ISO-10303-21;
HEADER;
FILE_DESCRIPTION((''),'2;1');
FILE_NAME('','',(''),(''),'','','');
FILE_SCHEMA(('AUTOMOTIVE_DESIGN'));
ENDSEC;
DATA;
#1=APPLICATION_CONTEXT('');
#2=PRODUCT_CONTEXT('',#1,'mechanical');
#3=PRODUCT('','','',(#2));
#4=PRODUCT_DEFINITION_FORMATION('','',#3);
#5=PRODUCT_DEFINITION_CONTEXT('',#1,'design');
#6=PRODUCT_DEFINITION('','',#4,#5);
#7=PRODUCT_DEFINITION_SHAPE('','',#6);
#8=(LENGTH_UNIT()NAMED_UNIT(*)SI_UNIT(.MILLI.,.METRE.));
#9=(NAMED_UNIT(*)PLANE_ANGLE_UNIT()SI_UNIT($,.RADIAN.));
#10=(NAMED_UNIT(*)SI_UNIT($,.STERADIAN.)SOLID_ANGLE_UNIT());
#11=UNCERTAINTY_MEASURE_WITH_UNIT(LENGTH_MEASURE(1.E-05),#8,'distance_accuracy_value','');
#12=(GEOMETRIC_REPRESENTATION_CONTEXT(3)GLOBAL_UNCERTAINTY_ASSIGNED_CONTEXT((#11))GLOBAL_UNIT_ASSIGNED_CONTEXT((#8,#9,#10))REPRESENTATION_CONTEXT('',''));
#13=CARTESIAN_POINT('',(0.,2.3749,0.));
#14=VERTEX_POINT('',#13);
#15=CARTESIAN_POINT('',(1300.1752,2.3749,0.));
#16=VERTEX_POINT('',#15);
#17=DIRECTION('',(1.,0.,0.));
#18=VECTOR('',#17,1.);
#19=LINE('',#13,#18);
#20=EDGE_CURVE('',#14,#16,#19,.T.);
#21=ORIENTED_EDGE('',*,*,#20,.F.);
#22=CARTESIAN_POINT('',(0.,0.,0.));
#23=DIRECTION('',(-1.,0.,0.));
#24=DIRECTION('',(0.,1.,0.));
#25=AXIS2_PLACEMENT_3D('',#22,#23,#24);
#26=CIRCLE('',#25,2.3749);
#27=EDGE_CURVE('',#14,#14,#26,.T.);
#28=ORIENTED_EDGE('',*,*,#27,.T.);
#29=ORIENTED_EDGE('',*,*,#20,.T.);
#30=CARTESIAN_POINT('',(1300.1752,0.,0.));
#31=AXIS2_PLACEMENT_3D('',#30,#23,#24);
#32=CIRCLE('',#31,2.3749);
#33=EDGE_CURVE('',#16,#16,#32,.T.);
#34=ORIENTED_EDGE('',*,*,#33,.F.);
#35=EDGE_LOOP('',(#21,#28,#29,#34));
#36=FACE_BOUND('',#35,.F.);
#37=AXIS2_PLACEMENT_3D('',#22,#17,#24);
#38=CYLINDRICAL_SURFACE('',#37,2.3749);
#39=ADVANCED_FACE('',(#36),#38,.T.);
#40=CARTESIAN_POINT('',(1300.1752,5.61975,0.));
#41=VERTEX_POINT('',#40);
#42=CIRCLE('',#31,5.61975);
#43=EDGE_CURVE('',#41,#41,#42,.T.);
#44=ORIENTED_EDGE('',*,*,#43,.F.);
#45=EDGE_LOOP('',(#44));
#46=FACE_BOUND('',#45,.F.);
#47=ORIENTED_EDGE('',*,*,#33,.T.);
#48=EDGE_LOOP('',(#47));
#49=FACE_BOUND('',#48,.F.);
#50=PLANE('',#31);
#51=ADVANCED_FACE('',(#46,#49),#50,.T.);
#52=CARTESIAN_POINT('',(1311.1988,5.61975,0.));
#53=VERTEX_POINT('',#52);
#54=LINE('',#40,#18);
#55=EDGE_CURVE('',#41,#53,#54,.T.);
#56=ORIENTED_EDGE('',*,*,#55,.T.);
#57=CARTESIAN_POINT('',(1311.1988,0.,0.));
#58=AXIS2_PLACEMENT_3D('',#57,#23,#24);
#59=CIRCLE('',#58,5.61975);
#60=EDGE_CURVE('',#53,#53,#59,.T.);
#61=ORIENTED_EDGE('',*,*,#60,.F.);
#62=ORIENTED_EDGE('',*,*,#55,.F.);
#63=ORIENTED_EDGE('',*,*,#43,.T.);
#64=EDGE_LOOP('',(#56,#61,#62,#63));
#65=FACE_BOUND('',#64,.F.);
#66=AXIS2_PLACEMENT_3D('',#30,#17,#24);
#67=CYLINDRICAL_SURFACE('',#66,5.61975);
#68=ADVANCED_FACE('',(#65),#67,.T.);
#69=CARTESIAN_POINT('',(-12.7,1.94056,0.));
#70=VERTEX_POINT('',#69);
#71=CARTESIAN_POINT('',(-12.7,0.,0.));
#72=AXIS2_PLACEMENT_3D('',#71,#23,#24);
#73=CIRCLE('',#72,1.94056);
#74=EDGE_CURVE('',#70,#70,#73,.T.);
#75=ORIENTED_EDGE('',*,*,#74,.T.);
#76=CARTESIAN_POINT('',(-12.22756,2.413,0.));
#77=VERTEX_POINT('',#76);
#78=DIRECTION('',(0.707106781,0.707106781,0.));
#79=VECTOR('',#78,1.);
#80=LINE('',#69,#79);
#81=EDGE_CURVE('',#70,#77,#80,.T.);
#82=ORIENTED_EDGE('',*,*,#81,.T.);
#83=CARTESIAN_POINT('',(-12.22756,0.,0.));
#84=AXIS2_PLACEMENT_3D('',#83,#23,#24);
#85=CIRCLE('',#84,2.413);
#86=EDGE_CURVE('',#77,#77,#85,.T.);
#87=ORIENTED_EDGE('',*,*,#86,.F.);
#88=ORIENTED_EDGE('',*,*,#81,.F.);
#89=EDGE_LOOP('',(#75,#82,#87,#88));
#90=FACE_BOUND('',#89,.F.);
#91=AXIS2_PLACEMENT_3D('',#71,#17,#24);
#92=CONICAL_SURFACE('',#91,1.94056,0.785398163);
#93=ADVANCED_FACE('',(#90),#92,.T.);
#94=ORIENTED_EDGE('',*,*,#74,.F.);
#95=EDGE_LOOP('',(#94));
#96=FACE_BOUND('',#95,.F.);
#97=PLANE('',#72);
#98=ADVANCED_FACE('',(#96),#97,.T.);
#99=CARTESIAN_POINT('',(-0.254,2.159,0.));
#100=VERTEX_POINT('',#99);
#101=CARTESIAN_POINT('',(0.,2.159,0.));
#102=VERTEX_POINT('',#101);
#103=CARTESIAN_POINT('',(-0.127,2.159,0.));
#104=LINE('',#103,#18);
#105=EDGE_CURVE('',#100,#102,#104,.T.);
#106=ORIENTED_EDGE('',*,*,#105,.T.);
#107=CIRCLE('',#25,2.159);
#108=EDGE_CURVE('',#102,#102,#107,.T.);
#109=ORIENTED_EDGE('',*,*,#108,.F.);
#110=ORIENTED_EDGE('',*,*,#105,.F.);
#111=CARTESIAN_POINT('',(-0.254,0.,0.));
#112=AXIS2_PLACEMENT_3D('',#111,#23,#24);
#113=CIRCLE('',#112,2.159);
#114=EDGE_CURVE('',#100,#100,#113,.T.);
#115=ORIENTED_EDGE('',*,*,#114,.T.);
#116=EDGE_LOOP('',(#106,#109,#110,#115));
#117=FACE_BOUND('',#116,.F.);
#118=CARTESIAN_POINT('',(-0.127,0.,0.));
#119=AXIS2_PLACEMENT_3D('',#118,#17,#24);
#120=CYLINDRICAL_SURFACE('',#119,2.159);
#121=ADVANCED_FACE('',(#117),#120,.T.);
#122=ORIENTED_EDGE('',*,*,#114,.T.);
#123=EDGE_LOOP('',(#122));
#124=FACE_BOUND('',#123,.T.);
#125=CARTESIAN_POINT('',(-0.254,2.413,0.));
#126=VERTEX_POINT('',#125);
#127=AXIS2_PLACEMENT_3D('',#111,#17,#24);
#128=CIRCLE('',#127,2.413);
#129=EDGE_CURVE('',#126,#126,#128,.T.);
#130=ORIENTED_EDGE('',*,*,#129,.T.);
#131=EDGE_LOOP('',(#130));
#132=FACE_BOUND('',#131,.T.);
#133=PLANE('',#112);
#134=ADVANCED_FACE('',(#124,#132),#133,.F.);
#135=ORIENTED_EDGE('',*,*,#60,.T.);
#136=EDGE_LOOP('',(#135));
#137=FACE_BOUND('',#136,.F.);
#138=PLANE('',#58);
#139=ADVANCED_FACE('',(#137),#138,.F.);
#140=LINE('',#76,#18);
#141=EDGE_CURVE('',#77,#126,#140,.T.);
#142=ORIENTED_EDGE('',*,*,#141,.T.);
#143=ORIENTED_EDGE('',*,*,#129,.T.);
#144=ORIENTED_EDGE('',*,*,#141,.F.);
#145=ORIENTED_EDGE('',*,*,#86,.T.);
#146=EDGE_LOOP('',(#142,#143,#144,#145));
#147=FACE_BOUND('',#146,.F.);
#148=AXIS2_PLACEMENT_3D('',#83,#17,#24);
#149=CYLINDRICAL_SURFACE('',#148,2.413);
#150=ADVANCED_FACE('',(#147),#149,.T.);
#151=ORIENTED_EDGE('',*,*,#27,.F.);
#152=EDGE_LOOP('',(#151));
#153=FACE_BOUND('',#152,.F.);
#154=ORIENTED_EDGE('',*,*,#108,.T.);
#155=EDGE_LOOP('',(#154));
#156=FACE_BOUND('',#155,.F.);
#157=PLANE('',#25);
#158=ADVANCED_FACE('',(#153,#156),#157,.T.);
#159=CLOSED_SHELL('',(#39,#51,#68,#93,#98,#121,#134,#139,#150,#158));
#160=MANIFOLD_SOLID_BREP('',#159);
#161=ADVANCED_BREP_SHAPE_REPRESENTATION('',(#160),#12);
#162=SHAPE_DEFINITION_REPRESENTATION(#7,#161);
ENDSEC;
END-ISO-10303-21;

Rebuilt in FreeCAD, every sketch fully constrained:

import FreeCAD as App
import Part
import Sketcher
from FreeCAD import Vector
Q = App.Units.Quantity


def add_polygon(sketch, points):
    """Adds a closed chain of lines whose ends are joined by coincident constraints."""
    first, n = sketch.GeometryCount, len(points)
    for a, b in zip(points, points[1:] + points[:1]):
        sketch.addGeometry(Part.LineSegment(App.Vector(*a, 0), App.Vector(*b, 0)), False)
    for i in range(n):
        sketch.addConstraint(Sketcher.Constraint("Coincident", first + i, 2, first + (i + 1) % n, 1))

doc = App.newDocument("Part")
params = doc.addObject("Spreadsheet::Sheet", "Params")
for row, (alias, value) in enumerate([
    ("sketch1_width", "51.622 in"),
    ("sketch1_width2", "0.434 in"),
    ("revolution_angle", "360 deg"),
    ("sketch2_width", "0.5 in"),
    ("sketch2_height", "0.095 in"),
    ("revolution2_angle", "360 deg"),
    ("sketch3_width", "0.01 in"),
    ("sketch3_height", "0.02 in"),
    ("groove_angle", "360 deg"),
], start=1):
    params.set(f"A{row}", alias)
    params.set(f"B{row}", "=" + value)
    params.setAlias(f"B{row}", alias)

body = doc.addObject("PartDesign::Body", "Body")

sketch1 = doc.addObject("Sketcher::SketchObject", "Sketch")
body.addObject(sketch1)
sketch1.AttachmentSupport = (doc.XY_Plane, [""])
sketch1.MapMode = "FlatFace"
add_polygon(sketch1, [(0, 2.4), (0, 0), (1311.2, 0), (1311.2, 5.6), (1300.2, 5.6), (1300.2, 2.4)])
sketch1.addConstraint([
    Sketcher.Constraint("Vertical", 0),
    Sketcher.Constraint("Horizontal", 1),
    Sketcher.Constraint("Vertical", 2),
    Sketcher.Constraint("Horizontal", 3),
    Sketcher.Constraint("Vertical", 4),
    Sketcher.Constraint("Horizontal", 5),
    Sketcher.Constraint("Coincident", 0, 2, -1, 1),
    Sketcher.Constraint("DistanceX", 1, 1, 1, 2, Q("51.622 in")),
    Sketcher.Constraint("DistanceX", 3, 2, 3, 1, Q("0.434 in")),
    Sketcher.Constraint("DistanceY", 0, 2, 0, 1, Q("0.0935 in")),
    Sketcher.Constraint("DistanceY", 2, 1, 2, 2, 5.61975),
])
sketch1.setExpression("Constraints[13]", "Params.sketch1_width")
sketch1.setExpression("Constraints[14]", "Params.sketch1_width2")
revolution = doc.addObject("PartDesign::Revolution", "Revolution")
body.addObject(revolution)
revolution.Profile = sketch1
revolution.ReferenceAxis = (sketch1, ["H_Axis"])
revolution.setExpression("Angle", "Params.revolution_angle")

sketch2 = doc.addObject("Sketcher::SketchObject", "Sketch001")
body.addObject(sketch2)
sketch2.AttachmentSupport = (doc.XY_Plane, [""])
sketch2.MapMode = "FlatFace"
add_polygon(sketch2, [(-12.7, 1.9), (-12.7, 0), (0, 0), (0, 2.4), (-12.2, 2.4)])
sketch2.addConstraint([
    Sketcher.Constraint("Vertical", 0),
    Sketcher.Constraint("Horizontal", 1),
    Sketcher.Constraint("Vertical", 2),
    Sketcher.Constraint("Horizontal", 3),
    Sketcher.Constraint("Coincident", 1, 2, -1, 1),
    Sketcher.Constraint("DistanceX", 1, 1, 1, 2, Q("0.5 in")),
    Sketcher.Constraint("Angle", 4, Q("-135 deg")),
    Sketcher.Constraint("DistanceY", 2, 1, 2, 2, Q("0.095 in")),
    Sketcher.Constraint("DistanceX", 3, 2, 3, 1, Q("0.4814 in")),
])
sketch2.setExpression("Constraints[10]", "Params.sketch2_width")
sketch2.setExpression("Constraints[12]", "Params.sketch2_height")
revolution2 = doc.addObject("PartDesign::Revolution", "Revolution001")
body.addObject(revolution2)
revolution2.Profile = sketch2
revolution2.ReferenceAxis = (sketch2, ["H_Axis"])
revolution2.setExpression("Angle", "Params.revolution2_angle")

sketch3 = doc.addObject("Sketcher::SketchObject", "Sketch002")
body.addObject(sketch3)
sketch3.AttachmentSupport = (doc.XY_Plane, [""])
sketch3.MapMode = "FlatFace"
add_polygon(sketch3, [(-0.25, 2.67), (-0.25, 2.16), (0, 2.16), (0, 2.67)])
sketch3.addConstraint([
    Sketcher.Constraint("Vertical", 0),
    Sketcher.Constraint("Horizontal", 1),
    Sketcher.Constraint("Vertical", 2),
    Sketcher.Constraint("Horizontal", 3),
    Sketcher.Constraint("PointOnObject", 1, 2, -2),
    Sketcher.Constraint("DistanceX", 1, 1, 1, 2, Q("0.01 in")),
    Sketcher.Constraint("DistanceY", 0, 2, 0, 1, Q("0.02 in")),
    Sketcher.Constraint("DistanceY", -1, 1, 0, 2, Q("0.085 in")),
])
sketch3.setExpression("Constraints[9]", "Params.sketch3_width")
sketch3.setExpression("Constraints[10]", "Params.sketch3_height")
groove = doc.addObject("PartDesign::Groove", "Groove")
body.addObject(groove)
groove.Profile = sketch3
groove.ReferenceAxis = (sketch3, ["H_Axis"])
groove.setExpression("Angle", "Params.groove_angle")

doc.recompute()
